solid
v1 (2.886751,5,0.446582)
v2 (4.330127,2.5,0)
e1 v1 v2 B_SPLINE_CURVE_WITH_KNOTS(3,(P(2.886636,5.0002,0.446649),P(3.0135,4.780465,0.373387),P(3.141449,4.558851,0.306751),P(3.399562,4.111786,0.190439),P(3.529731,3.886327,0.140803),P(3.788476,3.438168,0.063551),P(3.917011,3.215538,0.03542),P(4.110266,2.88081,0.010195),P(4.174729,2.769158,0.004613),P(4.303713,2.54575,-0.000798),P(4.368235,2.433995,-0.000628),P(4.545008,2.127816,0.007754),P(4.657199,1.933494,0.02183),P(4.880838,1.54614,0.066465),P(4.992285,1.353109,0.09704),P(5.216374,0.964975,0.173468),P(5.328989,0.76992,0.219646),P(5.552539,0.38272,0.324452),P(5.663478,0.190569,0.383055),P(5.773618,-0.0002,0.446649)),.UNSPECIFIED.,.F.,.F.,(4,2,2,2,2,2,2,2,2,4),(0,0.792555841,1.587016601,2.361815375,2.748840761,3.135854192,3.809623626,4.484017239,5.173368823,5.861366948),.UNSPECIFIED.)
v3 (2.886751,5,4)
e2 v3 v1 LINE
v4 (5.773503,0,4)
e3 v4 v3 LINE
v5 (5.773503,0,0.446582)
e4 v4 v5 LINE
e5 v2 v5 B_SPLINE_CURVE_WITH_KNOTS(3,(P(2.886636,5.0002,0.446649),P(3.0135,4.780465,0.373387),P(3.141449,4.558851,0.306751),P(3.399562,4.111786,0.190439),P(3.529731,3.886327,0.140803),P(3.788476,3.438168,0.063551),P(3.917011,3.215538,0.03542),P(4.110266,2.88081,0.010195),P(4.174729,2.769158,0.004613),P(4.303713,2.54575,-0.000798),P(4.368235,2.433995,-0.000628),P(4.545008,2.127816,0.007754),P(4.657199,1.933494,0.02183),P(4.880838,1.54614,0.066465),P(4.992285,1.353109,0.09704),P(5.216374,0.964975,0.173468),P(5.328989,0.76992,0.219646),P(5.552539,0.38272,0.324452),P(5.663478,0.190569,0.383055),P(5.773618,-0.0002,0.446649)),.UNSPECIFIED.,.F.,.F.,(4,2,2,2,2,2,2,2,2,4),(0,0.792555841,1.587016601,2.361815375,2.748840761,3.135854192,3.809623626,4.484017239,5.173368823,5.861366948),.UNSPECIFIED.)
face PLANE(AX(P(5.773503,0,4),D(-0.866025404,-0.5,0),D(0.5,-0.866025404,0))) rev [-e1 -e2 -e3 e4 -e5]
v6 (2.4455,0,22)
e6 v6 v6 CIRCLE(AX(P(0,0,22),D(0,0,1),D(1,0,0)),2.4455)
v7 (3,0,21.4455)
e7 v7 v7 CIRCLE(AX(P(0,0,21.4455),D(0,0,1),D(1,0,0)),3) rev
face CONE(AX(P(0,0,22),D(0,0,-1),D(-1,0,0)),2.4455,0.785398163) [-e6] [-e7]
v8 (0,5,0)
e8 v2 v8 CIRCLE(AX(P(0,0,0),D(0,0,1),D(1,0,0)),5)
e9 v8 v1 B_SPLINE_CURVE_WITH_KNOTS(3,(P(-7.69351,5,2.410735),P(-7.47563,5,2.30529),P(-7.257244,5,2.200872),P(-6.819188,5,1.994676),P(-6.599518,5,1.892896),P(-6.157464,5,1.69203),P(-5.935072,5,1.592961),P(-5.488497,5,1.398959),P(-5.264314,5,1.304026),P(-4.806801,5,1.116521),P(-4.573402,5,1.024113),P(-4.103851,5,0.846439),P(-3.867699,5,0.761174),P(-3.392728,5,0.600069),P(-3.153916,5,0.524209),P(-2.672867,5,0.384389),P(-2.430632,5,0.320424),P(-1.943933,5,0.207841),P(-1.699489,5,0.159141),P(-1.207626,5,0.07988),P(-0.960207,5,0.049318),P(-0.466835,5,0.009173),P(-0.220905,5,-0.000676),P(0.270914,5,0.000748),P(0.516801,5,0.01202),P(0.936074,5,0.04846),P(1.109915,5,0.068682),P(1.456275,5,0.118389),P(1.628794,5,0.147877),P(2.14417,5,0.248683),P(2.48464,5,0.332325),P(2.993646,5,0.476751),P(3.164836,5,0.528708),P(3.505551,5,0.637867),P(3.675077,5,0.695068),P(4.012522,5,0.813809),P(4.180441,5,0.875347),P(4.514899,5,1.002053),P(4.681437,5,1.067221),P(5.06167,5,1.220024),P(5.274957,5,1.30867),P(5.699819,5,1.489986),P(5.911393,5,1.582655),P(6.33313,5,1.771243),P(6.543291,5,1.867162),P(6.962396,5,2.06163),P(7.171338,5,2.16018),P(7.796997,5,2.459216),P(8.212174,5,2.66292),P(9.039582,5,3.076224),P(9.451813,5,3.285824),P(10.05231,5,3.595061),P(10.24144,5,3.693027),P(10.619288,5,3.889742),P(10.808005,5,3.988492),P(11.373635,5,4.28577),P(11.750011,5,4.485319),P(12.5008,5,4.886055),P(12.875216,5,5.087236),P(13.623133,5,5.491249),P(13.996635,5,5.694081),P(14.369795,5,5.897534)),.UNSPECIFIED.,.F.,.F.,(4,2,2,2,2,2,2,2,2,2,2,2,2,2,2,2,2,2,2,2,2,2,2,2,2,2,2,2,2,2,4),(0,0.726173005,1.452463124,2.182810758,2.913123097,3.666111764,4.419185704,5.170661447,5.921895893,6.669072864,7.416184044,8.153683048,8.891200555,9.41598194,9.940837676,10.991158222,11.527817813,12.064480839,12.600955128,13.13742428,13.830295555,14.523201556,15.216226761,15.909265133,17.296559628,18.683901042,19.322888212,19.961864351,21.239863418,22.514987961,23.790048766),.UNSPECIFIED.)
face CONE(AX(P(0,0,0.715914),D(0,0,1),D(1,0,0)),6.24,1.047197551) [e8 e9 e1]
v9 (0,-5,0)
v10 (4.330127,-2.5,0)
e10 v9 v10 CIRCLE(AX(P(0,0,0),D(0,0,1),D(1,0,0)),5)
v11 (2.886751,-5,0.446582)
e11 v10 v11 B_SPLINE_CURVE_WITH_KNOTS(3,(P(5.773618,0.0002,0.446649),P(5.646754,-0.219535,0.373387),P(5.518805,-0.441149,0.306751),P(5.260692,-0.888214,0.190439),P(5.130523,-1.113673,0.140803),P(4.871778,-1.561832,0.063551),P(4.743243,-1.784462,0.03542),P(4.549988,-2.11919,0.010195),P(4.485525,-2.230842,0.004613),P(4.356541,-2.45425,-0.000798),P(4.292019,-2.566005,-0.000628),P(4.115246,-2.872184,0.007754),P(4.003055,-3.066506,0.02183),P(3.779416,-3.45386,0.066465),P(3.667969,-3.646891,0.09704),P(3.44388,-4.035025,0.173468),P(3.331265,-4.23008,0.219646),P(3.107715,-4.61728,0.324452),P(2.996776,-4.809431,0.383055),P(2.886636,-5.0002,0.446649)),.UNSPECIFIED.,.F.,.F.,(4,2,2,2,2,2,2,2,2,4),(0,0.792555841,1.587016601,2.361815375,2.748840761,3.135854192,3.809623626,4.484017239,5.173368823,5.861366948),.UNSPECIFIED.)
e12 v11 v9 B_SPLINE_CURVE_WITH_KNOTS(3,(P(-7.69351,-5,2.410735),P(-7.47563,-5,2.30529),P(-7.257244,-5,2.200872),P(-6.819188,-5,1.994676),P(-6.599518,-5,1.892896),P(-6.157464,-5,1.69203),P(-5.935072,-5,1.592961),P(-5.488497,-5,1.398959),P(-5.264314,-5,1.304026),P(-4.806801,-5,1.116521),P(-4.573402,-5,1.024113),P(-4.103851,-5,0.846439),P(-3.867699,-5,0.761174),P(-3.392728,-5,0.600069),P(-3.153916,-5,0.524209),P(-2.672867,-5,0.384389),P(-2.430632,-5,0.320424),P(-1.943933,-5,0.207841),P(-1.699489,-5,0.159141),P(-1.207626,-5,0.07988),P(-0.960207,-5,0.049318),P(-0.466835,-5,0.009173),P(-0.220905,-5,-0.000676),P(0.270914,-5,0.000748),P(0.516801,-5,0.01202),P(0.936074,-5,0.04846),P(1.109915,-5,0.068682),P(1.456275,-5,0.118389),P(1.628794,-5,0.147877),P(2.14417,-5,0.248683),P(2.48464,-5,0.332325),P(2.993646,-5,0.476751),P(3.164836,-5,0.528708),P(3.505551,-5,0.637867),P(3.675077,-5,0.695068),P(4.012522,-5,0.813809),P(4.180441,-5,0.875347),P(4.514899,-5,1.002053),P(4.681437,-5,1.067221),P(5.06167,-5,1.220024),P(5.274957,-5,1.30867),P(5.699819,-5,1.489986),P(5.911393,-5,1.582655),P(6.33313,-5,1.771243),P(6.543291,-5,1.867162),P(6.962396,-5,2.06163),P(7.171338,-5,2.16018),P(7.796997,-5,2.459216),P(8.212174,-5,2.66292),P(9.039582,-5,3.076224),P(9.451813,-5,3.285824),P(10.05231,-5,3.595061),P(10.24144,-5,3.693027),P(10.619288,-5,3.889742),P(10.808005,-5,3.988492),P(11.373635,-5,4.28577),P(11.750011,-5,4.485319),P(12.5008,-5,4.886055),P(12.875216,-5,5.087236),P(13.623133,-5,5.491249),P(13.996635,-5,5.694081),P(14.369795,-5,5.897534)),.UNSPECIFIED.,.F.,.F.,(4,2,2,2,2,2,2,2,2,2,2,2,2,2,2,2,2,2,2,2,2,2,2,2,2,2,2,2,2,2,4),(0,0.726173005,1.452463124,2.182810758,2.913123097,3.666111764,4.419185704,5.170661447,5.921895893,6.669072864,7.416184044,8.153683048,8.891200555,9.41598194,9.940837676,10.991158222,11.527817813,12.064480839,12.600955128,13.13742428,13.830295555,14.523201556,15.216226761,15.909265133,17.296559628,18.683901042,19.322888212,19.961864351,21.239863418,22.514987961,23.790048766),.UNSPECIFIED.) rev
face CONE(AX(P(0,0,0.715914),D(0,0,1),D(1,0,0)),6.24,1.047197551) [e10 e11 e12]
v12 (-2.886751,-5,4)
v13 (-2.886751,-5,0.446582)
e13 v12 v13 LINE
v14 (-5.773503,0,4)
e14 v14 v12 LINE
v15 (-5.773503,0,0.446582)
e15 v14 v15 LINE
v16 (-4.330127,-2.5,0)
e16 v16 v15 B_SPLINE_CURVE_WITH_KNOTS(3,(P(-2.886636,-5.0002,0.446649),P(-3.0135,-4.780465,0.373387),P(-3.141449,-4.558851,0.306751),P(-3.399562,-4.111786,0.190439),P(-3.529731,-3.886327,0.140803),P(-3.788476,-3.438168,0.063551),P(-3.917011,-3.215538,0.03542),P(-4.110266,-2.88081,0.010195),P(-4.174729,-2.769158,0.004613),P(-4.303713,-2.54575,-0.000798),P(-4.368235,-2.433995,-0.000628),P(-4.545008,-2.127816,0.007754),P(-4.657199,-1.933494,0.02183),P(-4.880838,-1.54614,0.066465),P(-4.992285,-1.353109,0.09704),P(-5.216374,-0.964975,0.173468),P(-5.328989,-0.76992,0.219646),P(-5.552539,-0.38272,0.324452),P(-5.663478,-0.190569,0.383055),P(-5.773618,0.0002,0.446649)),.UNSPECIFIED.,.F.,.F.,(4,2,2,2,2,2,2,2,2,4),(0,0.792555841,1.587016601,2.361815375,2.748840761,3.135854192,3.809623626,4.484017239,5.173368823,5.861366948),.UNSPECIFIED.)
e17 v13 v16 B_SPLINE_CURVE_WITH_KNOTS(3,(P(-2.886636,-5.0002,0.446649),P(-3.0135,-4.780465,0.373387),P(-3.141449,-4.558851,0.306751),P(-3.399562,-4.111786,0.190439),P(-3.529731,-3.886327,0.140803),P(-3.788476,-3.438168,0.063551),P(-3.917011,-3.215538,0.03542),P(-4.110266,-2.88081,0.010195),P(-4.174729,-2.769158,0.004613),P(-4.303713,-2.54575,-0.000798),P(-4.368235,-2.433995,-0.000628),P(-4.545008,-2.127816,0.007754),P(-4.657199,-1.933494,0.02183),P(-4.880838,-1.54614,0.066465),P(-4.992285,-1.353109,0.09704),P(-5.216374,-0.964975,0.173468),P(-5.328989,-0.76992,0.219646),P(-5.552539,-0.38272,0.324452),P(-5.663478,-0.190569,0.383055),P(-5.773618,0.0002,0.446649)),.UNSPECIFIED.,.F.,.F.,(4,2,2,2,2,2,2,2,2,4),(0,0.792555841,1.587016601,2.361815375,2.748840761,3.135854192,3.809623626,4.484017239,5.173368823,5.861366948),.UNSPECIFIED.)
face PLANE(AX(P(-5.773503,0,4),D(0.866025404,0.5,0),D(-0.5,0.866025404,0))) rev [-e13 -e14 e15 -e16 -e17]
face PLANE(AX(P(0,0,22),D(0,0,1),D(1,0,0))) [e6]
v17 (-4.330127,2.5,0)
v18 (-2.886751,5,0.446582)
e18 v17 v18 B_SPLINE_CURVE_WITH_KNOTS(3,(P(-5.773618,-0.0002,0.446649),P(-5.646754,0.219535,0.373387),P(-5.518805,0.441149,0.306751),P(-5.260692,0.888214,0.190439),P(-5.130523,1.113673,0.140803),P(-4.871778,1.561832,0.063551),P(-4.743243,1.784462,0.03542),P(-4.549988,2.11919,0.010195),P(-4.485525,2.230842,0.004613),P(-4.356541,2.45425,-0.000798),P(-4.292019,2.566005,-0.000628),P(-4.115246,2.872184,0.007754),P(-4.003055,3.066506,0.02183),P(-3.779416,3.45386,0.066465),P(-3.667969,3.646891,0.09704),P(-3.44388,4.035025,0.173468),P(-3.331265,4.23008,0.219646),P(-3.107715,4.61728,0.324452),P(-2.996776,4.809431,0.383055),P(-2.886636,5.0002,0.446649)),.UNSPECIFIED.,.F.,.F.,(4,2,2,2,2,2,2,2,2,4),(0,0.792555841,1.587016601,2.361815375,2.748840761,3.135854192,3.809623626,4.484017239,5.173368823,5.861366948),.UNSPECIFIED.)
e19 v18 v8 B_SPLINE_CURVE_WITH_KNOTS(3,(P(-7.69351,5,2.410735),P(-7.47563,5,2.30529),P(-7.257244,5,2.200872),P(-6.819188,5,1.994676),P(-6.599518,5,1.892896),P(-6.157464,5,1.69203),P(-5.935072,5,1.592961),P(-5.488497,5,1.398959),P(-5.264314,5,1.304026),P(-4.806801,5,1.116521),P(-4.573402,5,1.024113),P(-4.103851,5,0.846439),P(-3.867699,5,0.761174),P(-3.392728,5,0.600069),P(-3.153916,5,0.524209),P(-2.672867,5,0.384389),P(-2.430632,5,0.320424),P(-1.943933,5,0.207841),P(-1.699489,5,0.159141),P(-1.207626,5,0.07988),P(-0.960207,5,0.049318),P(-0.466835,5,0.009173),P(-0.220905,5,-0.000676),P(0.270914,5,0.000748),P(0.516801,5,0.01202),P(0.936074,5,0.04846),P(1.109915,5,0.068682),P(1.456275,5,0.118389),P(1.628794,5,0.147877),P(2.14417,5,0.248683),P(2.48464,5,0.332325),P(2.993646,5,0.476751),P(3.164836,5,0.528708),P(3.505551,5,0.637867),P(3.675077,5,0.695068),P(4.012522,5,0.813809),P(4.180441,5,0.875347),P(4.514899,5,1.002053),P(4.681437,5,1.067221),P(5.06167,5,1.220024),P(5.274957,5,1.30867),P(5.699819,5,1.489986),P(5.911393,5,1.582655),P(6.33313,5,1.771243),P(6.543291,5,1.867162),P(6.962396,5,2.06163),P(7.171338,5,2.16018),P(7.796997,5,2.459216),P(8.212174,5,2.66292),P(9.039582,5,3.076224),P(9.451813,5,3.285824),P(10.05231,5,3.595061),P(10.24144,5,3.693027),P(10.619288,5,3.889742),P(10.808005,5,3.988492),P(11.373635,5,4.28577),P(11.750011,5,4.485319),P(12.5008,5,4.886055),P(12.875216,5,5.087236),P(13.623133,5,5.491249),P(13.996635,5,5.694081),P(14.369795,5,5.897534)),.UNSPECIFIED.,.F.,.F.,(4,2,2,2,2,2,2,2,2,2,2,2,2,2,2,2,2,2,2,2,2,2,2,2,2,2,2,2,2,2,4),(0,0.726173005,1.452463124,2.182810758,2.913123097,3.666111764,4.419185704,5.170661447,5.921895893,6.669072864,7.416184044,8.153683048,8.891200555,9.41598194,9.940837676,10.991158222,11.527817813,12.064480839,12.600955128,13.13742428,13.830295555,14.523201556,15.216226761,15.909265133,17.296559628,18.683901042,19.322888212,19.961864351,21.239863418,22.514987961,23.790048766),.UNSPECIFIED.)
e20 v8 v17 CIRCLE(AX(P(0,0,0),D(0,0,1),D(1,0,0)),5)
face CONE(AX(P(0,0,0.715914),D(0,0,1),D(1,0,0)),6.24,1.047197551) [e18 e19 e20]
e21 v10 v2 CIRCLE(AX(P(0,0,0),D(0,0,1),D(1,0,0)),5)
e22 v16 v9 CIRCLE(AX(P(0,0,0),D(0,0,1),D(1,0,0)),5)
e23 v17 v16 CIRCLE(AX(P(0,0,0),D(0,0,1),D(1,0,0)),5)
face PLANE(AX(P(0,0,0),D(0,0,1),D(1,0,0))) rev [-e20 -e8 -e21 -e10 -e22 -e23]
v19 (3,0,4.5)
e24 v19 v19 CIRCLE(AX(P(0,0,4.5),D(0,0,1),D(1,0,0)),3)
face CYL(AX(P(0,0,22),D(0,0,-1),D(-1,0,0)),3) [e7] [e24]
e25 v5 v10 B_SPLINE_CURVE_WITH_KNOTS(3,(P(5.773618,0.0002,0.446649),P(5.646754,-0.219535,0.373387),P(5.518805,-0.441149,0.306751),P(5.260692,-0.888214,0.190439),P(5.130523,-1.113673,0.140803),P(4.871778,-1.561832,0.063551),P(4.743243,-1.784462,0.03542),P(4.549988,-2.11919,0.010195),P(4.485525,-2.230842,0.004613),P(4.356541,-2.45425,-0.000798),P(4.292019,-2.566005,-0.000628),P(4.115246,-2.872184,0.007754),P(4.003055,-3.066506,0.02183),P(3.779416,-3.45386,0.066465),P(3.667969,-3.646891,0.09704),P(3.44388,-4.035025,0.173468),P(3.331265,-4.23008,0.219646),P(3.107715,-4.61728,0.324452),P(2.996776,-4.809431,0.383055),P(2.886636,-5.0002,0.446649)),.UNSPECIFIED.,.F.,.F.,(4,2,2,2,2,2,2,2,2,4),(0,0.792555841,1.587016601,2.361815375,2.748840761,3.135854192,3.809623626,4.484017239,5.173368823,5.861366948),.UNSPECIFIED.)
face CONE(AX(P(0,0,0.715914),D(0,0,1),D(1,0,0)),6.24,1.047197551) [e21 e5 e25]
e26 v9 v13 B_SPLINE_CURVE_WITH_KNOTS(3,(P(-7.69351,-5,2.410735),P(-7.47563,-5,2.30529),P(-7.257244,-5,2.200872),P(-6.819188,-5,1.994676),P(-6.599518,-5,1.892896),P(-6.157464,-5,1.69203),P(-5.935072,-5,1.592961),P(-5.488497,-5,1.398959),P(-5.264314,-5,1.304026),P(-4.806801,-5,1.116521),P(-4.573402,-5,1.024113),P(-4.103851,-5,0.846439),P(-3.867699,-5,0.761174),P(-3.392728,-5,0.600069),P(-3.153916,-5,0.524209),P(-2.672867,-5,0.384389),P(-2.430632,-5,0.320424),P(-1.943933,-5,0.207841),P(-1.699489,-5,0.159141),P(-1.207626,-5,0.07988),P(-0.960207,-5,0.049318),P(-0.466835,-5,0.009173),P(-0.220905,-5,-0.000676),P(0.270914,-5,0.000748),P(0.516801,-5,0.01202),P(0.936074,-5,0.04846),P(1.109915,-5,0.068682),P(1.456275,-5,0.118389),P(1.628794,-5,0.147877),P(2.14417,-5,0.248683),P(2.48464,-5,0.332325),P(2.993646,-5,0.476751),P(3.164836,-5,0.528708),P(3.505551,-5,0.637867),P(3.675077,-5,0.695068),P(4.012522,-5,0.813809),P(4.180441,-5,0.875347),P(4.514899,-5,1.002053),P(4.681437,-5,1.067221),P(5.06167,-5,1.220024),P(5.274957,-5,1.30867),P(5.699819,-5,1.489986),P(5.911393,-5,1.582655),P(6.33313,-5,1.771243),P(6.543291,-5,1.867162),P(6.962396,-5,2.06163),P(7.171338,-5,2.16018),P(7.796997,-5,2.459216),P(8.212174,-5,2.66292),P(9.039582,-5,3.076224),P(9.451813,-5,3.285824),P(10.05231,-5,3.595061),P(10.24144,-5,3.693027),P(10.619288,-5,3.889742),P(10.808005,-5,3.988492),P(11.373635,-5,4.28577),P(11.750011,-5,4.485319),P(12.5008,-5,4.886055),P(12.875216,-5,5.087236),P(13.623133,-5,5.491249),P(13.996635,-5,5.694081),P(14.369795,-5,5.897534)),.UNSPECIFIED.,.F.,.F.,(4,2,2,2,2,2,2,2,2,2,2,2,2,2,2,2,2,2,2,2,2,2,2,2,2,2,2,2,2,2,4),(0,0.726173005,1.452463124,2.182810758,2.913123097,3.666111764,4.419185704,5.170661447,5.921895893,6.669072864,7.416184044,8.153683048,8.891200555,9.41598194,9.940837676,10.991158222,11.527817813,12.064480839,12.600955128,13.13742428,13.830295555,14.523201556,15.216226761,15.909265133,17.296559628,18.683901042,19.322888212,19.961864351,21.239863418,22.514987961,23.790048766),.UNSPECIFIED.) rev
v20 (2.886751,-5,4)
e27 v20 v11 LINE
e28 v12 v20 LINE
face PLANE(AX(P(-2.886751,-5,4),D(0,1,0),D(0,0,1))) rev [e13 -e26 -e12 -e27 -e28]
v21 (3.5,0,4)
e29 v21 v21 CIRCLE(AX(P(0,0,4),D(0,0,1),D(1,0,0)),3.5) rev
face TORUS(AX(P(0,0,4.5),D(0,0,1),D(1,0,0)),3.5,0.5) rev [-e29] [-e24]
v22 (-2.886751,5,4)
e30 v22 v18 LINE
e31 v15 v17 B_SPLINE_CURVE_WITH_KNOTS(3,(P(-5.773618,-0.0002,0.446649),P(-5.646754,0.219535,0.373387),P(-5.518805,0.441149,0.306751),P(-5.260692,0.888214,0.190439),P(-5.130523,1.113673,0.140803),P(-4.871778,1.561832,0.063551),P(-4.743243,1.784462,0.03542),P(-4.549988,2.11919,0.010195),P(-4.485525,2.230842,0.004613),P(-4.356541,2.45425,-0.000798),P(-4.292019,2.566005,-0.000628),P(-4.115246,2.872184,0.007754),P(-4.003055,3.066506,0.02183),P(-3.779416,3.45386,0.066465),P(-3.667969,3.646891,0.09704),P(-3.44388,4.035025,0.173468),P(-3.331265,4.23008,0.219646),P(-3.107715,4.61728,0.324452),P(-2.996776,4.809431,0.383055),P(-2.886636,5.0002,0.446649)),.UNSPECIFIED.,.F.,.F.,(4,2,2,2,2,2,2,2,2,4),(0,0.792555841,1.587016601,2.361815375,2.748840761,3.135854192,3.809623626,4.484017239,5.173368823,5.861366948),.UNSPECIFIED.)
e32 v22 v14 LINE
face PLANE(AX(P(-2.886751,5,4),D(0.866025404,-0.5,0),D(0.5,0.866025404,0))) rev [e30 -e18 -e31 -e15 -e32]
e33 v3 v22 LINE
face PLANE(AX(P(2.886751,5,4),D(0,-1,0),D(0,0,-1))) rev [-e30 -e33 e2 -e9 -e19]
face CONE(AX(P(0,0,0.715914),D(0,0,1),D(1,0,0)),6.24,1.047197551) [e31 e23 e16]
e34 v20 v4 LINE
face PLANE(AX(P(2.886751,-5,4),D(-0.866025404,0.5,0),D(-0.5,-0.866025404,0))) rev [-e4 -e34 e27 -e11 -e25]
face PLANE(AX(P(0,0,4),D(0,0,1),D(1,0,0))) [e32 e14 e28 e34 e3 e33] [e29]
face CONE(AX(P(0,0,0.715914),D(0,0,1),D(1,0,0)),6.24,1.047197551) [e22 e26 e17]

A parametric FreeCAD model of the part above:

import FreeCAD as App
import Part
import Sketcher
from FreeCAD import Vector
Q = App.Units.Quantity


def edges_at(feature, points):
    """Names of the edges that pass closest to the given points."""
    edges = feature.Shape.Edges
    near = lambda p: min(range(len(edges)), key=lambda i: edges[i].distToShape(Part.Vertex(*p))[0])
    return sorted({f"Edge{near(p) + 1}" for p in points})

doc = App.newDocument("Part")
params = doc.addObject("Spreadsheet::Sheet", "Params")
for row, (alias, value) in enumerate([
    ("pad1_length", "4 mm"),
    ("sketch2_diameter", "6 mm"),
    ("pad2_length", "18 mm"),
    ("sketch3_width", "1.24 mm"),
    ("groove_angle", "360 deg"),
    ("chamfer_size", "0.5545 mm"),
    ("fillet_radius", "0.5 mm"),
], start=1):
    params.set(f"A{row}", alias)
    params.set(f"B{row}", "=" + value)
    params.setAlias(f"B{row}", alias)

body = doc.addObject("PartDesign::Body", "Body")

# Sketch on XY plane
sketch1 = body.newObject("Sketcher::SketchObject", "Sketch")
sketch1.AttachmentSupport = (doc.getObject("XY_Plane"), [""])
sketch1.MapMode = "FlatFace"
sketch1.addGeometry(Part.LineSegment(Vector(-3, 5, 0), Vector(-6, 0, 0)), False)
sketch1.addGeometry(Part.LineSegment(Vector(-6, 0, 0), Vector(-3, -5, 0)), False)
sketch1.addGeometry(Part.LineSegment(Vector(-3, -5, 0), Vector(3, -5, 0)), False)
sketch1.addGeometry(Part.LineSegment(Vector(3, -5, 0), Vector(6, 0, 0)), False)
sketch1.addGeometry(Part.LineSegment(Vector(6, 0, 0), Vector(3, 5, 0)), False)
sketch1.addGeometry(Part.LineSegment(Vector(3, 5, 0), Vector(-3, 5, 0)), False)
sketch1.addConstraint(Sketcher.Constraint("Coincident", 0, 2, 1, 1))
sketch1.addConstraint(Sketcher.Constraint("Coincident", 1, 2, 2, 1))
sketch1.addConstraint(Sketcher.Constraint("Coincident", 2, 2, 3, 1))
sketch1.addConstraint(Sketcher.Constraint("Coincident", 3, 2, 4, 1))
sketch1.addConstraint(Sketcher.Constraint("Coincident", 4, 2, 5, 1))
sketch1.addConstraint(Sketcher.Constraint("Coincident", 5, 2, 0, 1))
sketch1.addConstraint(Sketcher.Constraint("Horizontal", 2))
sketch1.addConstraint(Sketcher.Constraint("Horizontal", 5))
sketch1.addConstraint(Sketcher.Constraint("Symmetric", 0, 2, 3, 2, -1, 1))
sketch1.addConstraint(Sketcher.Constraint("Symmetric", 1, 2, 4, 2, -1, 1))
sketch1.addConstraint(Sketcher.Constraint("PointOnObject", 0, 2, -1))
sketch1.addConstraint(Sketcher.Constraint("Parallel", 0, 3))
sketch1.addConstraint(Sketcher.Constraint("Vertical", 2, 2, 4, 2))
sketch1.addConstraint(Sketcher.Constraint("Angle", 0, Q("-120 deg")))
sketch1.addConstraint(Sketcher.Constraint("DistanceY", 1, 2, -1, 1, Q("5 mm")))
sketch1.addConstraint(Sketcher.Constraint("DistanceX", 2, 1, 2, 2, Q("5.773503 mm")))
pad1 = body.newObject("PartDesign::Pad", "Pad")
pad1.Profile = sketch1
pad1.setExpression("Length", "Params.pad1_length")

# Sketch on XY plane
sketch2 = body.newObject("Sketcher::SketchObject", "Sketch001")
sketch2.AttachmentSupport = (doc.getObject("XY_Plane"), [""])
sketch2.MapMode = "FlatFace"
sketch2.AttachmentOffset = App.Placement(Vector(0, 0, 4), App.Rotation())
sketch2.addGeometry(Part.Circle(Vector(0, 0, 0), Vector(0, 0, 1), 3), False)
sketch2.addConstraint(Sketcher.Constraint("Coincident", 0, 3, -1, 1))
sketch2.addConstraint(Sketcher.Constraint("Diameter", 0, Q("6 mm")))
sketch2.setExpression("Constraints[1]", "Params.sketch2_diameter")
pad2 = body.newObject("PartDesign::Pad", "Pad001")
pad2.Profile = sketch2
pad2.setExpression("Length", "Params.pad2_length")

# Sketch on YZ plane
sketch3 = body.newObject("Sketcher::SketchObject", "Sketch002")
sketch3.AttachmentSupport = (doc.getObject("YZ_Plane"), [""])
sketch3.MapMode = "FlatFace"
sketch3.addGeometry(Part.LineSegment(Vector(5, 0, 0), Vector(6.2, 0, 0)), False)
sketch3.addGeometry(Part.LineSegment(Vector(6.2, 0, 0), Vector(6.2, 0.7, 0)), False)
sketch3.addGeometry(Part.LineSegment(Vector(6.2, 0.7, 0), Vector(5, 0, 0)), False)
sketch3.addConstraint(Sketcher.Constraint("Coincident", 0, 2, 1, 1))
sketch3.addConstraint(Sketcher.Constraint("Coincident", 1, 2, 2, 1))
sketch3.addConstraint(Sketcher.Constraint("Coincident", 2, 2, 0, 1))
sketch3.addConstraint(Sketcher.Constraint("Horizontal", 0))
sketch3.addConstraint(Sketcher.Constraint("Vertical", 1))
sketch3.addConstraint(Sketcher.Constraint("PointOnObject", 0, 2, -1))
sketch3.addConstraint(Sketcher.Constraint("Angle", 2, Q("-150 deg")))
sketch3.addConstraint(Sketcher.Constraint("DistanceX", -1, 1, 2, 2, Q("5 mm")))
sketch3.addConstraint(Sketcher.Constraint("DistanceX", 0, 1, 0, 2, Q("1.24 mm")))
sketch3.setExpression("Constraints[8]", "Params.sketch3_width")
groove = body.newObject("PartDesign::Groove", "Groove")
groove.Profile = sketch3
groove.ReferenceAxis = (sketch3, ["V_Axis"])
groove.setExpression("Angle", "Params.groove_angle")
doc.recompute()

chamfer = body.newObject("PartDesign::Chamfer", "Chamfer")
chamfer.Base = (groove, edges_at(groove, [(-3, 0, 22)]))
chamfer.setExpression("Size", "Params.chamfer_size")
doc.recompute()

fillet = body.newObject("PartDesign::Fillet", "Fillet")
fillet.Base = (chamfer, edges_at(chamfer, [(-3, 0, 4)]))
fillet.setExpression("Radius", "Params.fillet_radius")

doc.recompute()
